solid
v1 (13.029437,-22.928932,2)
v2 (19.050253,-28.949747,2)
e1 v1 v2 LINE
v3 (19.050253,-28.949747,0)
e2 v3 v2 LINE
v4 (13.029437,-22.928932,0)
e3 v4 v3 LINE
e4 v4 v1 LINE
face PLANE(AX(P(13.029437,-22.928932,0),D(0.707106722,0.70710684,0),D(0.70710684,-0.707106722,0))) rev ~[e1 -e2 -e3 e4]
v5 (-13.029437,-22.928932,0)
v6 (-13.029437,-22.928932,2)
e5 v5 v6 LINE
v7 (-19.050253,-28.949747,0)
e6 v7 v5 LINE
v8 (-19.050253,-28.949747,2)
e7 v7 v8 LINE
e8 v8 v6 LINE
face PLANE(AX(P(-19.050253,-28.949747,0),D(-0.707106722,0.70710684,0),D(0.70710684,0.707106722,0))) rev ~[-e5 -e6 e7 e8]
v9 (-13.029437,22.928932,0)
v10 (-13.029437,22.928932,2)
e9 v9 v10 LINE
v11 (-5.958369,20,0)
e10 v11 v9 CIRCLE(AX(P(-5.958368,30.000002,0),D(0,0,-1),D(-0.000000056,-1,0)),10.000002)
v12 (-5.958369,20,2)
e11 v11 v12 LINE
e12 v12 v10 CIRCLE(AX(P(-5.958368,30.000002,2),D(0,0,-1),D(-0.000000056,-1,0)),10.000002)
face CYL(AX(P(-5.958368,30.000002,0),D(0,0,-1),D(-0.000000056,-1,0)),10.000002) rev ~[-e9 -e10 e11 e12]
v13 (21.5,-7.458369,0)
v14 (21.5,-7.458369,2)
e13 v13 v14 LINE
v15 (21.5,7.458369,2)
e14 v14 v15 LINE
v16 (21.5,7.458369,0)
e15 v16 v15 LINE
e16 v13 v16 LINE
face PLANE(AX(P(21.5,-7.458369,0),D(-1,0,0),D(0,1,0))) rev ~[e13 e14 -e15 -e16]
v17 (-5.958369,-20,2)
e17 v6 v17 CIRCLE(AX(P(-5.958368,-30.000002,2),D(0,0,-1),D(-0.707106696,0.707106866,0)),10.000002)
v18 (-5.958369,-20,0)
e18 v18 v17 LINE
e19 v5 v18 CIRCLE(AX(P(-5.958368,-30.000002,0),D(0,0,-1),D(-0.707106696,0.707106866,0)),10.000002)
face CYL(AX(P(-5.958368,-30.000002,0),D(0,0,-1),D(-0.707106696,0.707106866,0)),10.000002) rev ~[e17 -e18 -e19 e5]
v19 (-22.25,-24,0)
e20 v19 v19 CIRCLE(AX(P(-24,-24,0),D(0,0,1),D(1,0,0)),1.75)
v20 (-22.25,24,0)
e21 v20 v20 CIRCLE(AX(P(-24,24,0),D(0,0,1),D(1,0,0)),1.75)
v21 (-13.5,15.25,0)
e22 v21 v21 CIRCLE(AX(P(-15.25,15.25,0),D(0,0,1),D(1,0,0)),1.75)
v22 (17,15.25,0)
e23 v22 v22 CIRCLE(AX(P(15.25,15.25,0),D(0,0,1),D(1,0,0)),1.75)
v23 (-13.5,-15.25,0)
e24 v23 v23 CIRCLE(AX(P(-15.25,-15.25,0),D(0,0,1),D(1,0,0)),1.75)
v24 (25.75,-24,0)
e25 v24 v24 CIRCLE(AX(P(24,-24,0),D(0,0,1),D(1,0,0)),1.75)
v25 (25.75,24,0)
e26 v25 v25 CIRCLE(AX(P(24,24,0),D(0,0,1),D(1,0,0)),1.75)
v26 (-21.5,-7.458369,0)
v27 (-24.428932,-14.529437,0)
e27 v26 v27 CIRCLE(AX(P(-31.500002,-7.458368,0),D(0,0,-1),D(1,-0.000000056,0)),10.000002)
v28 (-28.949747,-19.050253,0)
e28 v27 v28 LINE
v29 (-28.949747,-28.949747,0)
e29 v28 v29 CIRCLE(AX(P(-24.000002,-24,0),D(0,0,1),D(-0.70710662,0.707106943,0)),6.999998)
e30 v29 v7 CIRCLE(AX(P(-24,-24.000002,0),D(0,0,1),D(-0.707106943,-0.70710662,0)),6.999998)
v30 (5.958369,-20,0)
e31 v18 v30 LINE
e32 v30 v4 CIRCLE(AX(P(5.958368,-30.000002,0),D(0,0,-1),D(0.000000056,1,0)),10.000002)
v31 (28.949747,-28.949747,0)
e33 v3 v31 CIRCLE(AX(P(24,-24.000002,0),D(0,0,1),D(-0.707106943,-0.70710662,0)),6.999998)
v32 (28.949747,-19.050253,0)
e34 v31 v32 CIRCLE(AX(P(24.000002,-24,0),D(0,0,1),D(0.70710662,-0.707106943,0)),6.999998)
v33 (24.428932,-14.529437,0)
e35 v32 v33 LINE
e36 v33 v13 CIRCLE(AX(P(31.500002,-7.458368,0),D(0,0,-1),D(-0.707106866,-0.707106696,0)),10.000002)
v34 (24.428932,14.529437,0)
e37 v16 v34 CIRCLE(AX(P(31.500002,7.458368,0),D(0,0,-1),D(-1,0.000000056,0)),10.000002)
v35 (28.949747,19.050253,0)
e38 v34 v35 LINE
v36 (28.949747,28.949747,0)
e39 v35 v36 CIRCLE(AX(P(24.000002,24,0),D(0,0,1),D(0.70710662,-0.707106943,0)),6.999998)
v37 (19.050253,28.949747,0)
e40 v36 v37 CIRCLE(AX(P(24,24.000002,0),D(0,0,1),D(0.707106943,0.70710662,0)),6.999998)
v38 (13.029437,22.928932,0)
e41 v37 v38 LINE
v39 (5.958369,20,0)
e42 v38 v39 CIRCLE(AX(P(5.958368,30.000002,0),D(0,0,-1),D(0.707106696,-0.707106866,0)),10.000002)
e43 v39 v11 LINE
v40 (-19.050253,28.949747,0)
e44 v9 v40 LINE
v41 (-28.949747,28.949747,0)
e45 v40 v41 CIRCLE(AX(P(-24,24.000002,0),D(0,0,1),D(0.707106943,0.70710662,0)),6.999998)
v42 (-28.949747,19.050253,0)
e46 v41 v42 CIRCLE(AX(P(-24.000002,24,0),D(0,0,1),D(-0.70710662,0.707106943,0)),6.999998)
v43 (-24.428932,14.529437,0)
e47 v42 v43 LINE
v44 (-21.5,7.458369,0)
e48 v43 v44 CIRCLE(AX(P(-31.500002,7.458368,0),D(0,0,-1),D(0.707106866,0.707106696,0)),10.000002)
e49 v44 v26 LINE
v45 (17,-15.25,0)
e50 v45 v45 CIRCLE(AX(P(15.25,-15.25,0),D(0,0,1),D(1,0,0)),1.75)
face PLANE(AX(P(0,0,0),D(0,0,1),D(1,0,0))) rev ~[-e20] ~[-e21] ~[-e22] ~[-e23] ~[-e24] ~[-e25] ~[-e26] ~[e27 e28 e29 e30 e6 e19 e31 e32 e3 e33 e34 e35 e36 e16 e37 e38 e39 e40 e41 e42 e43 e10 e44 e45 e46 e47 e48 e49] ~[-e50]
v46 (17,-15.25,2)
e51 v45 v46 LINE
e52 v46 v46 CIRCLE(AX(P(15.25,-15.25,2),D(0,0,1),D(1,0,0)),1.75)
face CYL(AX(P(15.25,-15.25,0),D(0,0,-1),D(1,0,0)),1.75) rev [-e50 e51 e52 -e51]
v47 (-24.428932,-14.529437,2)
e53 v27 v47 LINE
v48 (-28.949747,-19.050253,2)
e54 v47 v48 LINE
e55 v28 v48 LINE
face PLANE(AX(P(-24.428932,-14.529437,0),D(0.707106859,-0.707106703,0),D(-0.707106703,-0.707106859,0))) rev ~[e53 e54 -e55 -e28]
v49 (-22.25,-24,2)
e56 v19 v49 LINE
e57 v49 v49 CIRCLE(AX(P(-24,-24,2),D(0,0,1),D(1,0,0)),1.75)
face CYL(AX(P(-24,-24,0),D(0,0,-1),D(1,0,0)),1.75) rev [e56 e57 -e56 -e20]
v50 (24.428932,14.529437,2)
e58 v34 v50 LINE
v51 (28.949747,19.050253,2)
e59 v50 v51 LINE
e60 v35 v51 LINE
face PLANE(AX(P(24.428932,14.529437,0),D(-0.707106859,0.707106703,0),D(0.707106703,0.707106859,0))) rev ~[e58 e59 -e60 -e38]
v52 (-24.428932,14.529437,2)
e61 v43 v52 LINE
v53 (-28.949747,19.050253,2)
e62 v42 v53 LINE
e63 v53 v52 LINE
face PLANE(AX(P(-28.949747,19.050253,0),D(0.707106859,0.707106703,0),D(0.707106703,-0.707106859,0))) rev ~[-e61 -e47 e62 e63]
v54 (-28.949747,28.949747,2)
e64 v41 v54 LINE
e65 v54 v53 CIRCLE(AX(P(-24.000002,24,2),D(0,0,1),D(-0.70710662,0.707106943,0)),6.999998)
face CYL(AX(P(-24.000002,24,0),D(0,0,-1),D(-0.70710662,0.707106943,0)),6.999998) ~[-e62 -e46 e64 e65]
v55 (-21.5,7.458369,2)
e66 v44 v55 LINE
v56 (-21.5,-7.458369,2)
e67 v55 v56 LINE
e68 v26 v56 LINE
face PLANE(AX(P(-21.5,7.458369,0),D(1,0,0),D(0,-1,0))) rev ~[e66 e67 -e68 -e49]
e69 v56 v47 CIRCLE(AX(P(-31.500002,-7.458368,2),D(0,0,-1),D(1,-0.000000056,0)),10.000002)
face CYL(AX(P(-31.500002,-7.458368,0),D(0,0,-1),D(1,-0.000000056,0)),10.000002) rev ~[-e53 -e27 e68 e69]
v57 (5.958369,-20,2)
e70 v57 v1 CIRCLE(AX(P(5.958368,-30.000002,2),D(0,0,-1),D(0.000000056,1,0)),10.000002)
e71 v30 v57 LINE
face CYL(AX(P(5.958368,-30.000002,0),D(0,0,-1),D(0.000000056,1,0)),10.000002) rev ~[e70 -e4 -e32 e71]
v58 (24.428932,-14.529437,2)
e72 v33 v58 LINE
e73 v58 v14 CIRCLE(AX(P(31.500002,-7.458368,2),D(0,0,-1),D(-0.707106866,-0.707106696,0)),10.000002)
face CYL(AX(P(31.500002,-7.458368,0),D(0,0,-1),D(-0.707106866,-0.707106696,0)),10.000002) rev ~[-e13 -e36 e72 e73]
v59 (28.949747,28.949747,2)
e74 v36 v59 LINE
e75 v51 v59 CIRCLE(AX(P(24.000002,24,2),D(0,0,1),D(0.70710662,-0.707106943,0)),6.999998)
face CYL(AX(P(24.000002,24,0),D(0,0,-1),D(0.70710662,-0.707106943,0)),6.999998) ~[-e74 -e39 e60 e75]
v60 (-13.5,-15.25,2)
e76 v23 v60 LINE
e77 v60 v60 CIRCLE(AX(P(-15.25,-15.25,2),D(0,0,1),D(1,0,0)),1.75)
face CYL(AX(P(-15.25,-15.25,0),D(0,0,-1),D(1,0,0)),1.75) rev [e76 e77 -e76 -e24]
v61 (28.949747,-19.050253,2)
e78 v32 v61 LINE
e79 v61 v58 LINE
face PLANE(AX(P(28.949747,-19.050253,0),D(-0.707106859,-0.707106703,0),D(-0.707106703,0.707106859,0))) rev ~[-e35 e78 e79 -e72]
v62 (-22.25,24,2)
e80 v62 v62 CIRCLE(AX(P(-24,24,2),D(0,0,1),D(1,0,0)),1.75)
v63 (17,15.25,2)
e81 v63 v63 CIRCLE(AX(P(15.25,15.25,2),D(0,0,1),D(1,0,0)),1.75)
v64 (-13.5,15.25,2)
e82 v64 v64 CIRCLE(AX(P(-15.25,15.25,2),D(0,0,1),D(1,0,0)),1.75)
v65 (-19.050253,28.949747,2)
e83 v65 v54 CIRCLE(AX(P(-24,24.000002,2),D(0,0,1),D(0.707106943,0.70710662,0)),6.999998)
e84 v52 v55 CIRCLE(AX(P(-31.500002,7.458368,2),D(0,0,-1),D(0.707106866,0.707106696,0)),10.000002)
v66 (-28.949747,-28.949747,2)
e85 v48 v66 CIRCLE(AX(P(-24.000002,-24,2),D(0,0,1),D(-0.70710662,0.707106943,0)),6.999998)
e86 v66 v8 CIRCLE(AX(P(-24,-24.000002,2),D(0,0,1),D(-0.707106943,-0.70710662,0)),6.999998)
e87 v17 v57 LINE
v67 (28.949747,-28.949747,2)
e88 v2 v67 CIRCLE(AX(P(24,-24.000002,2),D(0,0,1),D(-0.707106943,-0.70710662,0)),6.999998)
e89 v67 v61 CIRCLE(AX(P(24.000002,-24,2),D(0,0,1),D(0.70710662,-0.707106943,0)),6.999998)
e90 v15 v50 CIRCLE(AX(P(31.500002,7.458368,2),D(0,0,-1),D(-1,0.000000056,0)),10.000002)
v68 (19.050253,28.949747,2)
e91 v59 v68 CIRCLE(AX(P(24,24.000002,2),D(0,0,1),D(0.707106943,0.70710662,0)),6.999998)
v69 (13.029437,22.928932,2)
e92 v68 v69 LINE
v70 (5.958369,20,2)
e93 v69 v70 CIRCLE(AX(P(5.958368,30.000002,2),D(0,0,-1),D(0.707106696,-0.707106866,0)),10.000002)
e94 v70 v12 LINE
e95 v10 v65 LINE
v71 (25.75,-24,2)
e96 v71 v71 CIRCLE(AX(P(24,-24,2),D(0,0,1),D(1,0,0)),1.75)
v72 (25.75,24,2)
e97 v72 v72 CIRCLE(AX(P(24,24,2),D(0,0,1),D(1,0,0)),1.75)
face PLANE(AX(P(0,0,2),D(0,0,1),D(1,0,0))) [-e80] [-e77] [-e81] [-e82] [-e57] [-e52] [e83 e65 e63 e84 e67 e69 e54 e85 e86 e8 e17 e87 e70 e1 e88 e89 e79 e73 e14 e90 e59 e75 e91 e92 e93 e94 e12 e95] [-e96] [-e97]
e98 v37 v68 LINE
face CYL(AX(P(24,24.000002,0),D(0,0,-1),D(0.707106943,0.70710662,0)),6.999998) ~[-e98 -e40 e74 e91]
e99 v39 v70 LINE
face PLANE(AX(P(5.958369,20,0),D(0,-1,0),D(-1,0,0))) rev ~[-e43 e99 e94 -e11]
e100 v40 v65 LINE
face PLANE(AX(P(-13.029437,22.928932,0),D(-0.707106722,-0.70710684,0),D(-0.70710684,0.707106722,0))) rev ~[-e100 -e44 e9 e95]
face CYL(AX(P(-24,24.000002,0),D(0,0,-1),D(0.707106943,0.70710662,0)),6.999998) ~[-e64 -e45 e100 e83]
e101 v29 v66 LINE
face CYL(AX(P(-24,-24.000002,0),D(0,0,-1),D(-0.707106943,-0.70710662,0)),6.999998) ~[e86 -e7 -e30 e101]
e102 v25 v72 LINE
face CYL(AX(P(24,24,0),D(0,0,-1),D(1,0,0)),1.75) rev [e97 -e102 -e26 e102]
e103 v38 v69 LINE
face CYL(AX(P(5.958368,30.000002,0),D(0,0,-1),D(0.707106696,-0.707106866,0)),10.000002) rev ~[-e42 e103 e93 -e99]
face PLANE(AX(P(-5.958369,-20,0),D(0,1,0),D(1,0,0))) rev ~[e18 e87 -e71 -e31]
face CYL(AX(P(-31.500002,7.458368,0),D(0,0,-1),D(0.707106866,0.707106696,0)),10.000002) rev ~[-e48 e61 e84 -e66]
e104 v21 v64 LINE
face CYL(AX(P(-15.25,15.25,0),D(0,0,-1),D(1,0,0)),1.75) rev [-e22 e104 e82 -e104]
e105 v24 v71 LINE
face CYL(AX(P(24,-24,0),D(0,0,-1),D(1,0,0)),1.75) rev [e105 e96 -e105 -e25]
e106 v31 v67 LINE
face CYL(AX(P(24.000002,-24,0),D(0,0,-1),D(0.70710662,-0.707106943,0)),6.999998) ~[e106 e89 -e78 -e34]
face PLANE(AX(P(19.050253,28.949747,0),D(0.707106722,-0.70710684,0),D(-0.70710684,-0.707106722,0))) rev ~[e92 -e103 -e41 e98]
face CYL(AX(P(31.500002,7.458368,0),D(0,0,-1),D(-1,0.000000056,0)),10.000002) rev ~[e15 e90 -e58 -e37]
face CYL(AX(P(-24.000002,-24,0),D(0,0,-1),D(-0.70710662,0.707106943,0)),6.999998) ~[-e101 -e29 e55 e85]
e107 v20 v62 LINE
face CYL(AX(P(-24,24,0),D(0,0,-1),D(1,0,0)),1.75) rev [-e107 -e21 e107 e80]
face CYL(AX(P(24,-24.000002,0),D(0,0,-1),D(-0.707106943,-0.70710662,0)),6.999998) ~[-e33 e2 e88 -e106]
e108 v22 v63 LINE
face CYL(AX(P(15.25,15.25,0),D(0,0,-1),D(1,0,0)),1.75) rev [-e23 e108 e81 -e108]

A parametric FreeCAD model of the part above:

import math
import FreeCAD as App
import Part
import Sketcher
Q = App.Units.Quantity

doc = App.newDocument("Part")
params = doc.addObject("Spreadsheet::Sheet", "Params")
for row, (alias, value) in enumerate([
    ("sketch1_diameter", "3.5 mm"),
    ("pad1_length", "2 mm"),
], start=1):
    params.set(f"A{row}", alias)
    params.set(f"B{row}", "=" + value)
    params.setAlias(f"B{row}", alias)

body = doc.addObject("PartDesign::Body", "Body")

# Sketch on XY plane
sketch1 = doc.addObject("Sketcher::SketchObject", "Sketch")
body.addObject(sketch1)
sketch1.AttachmentSupport = (doc.XY_Plane, [""])
sketch1.MapMode = "FlatFace"
sketch1.addGeometry([
    Part.ArcOfCircle(Part.Circle(App.Vector(-24, 24, 0), App.Vector(0, 0, 1), 7), math.radians(135), math.radians(225)),  # 0
    Part.LineSegment(App.Vector(-28.9, 19.1, 0), App.Vector(-24.4, 14.5, 0)),  # 1
    Part.ArcOfCircle(Part.Circle(App.Vector(-31.5, 7.5, 0), App.Vector(0, 0, 1), 10), math.radians(0), math.radians(45)),  # 2
    Part.LineSegment(App.Vector(-21.5, 7.5, 0), App.Vector(-21.5, -7.5, 0)),  # 3
    Part.ArcOfCircle(Part.Circle(App.Vector(-31.5, -7.5, 0), App.Vector(0, 0, 1), 10), math.radians(-45), math.radians(0)),  # 4
    Part.LineSegment(App.Vector(-24.4, -14.5, 0), App.Vector(-28.9, -19.1, 0)),  # 5
    Part.ArcOfCircle(Part.Circle(App.Vector(-24, -24, 0), App.Vector(0, 0, 1), 7), math.radians(135), math.radians(225)),  # 6
    Part.ArcOfCircle(Part.Circle(App.Vector(-24, -24, 0), App.Vector(0, 0, 1), 7), math.radians(-135), math.radians(-45)),  # 7
    Part.LineSegment(App.Vector(-19.1, -28.9, 0), App.Vector(-13, -22.9, 0)),  # 8
    Part.ArcOfCircle(Part.Circle(App.Vector(-6, -30, 0), App.Vector(0, 0, 1), 10), math.radians(90), math.radians(135)),  # 9
    Part.LineSegment(App.Vector(-6, -20, 0), App.Vector(6, -20, 0)),  # 10
    Part.ArcOfCircle(Part.Circle(App.Vector(6, -30, 0), App.Vector(0, 0, 1), 10), math.radians(45), math.radians(90)),  # 11
    Part.LineSegment(App.Vector(13, -22.9, 0), App.Vector(19.1, -28.9, 0)),  # 12
    Part.ArcOfCircle(Part.Circle(App.Vector(24, -24, 0), App.Vector(0, 0, 1), 7), math.radians(-135), math.radians(-45)),  # 13
    Part.ArcOfCircle(Part.Circle(App.Vector(24, -24, 0), App.Vector(0, 0, 1), 7), math.radians(-45), math.radians(45)),  # 14
    Part.LineSegment(App.Vector(28.9, -19.1, 0), App.Vector(24.4, -14.5, 0)),  # 15
    Part.ArcOfCircle(Part.Circle(App.Vector(31.5, -7.5, 0), App.Vector(0, 0, 1), 10), math.radians(-180), math.radians(-135)),  # 16
    Part.LineSegment(App.Vector(21.5, -7.5, 0), App.Vector(21.5, 7.5, 0)),  # 17
    Part.ArcOfCircle(Part.Circle(App.Vector(31.5, 7.5, 0), App.Vector(0, 0, 1), 10), math.radians(135), math.radians(180)),  # 18
    Part.LineSegment(App.Vector(24.4, 14.5, 0), App.Vector(28.9, 19.1, 0)),  # 19
    Part.ArcOfCircle(Part.Circle(App.Vector(24, 24, 0), App.Vector(0, 0, 1), 7), math.radians(-45), math.radians(45)),  # 20
    Part.ArcOfCircle(Part.Circle(App.Vector(24, 24, 0), App.Vector(0, 0, 1), 7), math.radians(45), math.radians(135)),  # 21
    Part.LineSegment(App.Vector(19.1, 28.9, 0), App.Vector(13, 22.9, 0)),  # 22
    Part.ArcOfCircle(Part.Circle(App.Vector(6, 30, 0), App.Vector(0, 0, 1), 10), math.radians(-90), math.radians(-45)),  # 23
    Part.LineSegment(App.Vector(6, 20, 0), App.Vector(-6, 20, 0)),  # 24
    Part.ArcOfCircle(Part.Circle(App.Vector(-6, 30, 0), App.Vector(0, 0, 1), 10), math.radians(-135), math.radians(-90)),  # 25
    Part.LineSegment(App.Vector(-13, 22.9, 0), App.Vector(-19.1, 28.9, 0)),  # 26
    Part.ArcOfCircle(Part.Circle(App.Vector(-24, 24, 0), App.Vector(0, 0, 1), 7), math.radians(45), math.radians(135)),  # 27
    Part.Circle(App.Vector(-24, -24, 0), App.Vector(0, 0, 1), 1.8),  # 28
    Part.Circle(App.Vector(-15.2, -15.2, 0), App.Vector(0, 0, 1), 1.8),  # 29
    Part.Circle(App.Vector(24, -24, 0), App.Vector(0, 0, 1), 1.8),  # 30
    Part.Circle(App.Vector(15.2, -15.2, 0), App.Vector(0, 0, 1), 1.8),  # 31
    Part.Circle(App.Vector(-15.2, 15.2, 0), App.Vector(0, 0, 1), 1.8),  # 32
    Part.Circle(App.Vector(-24, 24, 0), App.Vector(0, 0, 1), 1.8),  # 33
    Part.Circle(App.Vector(15.2, 15.2, 0), App.Vector(0, 0, 1), 1.8),  # 34
    Part.Circle(App.Vector(24, 24, 0), App.Vector(0, 0, 1), 1.8),  # 35
], False)
sketch1.addConstraint([
    Sketcher.Constraint("Tangent", 0, 2, 1, 1),
    Sketcher.Constraint("Tangent", 1, 2, 2, 2),
    Sketcher.Constraint("Tangent", 2, 1, 3, 1),
    Sketcher.Constraint("Tangent", 3, 2, 4, 2),
    Sketcher.Constraint("Tangent", 4, 1, 5, 1),
    Sketcher.Constraint("Tangent", 5, 2, 6, 1),
    Sketcher.Constraint("Tangent", 6, 2, 7, 1),
    Sketcher.Constraint("Tangent", 7, 2, 8, 1),
    Sketcher.Constraint("Tangent", 8, 2, 9, 2),
    Sketcher.Constraint("Tangent", 9, 1, 10, 1),
    Sketcher.Constraint("Tangent", 10, 2, 11, 2),
    Sketcher.Constraint("Tangent", 11, 1, 12, 1),
    Sketcher.Constraint("Tangent", 12, 2, 13, 1),
    Sketcher.Constraint("Tangent", 13, 2, 14, 1),
    Sketcher.Constraint("Tangent", 14, 2, 15, 1),
    Sketcher.Constraint("Tangent", 15, 2, 16, 2),
    Sketcher.Constraint("Tangent", 16, 1, 17, 1),
    Sketcher.Constraint("Tangent", 17, 2, 18, 2),
    Sketcher.Constraint("Tangent", 18, 1, 19, 1),
    Sketcher.Constraint("Tangent", 19, 2, 20, 1),
    Sketcher.Constraint("Tangent", 20, 2, 21, 1),
    Sketcher.Constraint("Tangent", 21, 2, 22, 1),
    Sketcher.Constraint("Tangent", 22, 2, 23, 2),
    Sketcher.Constraint("Tangent", 23, 1, 24, 1),
    Sketcher.Constraint("Tangent", 24, 2, 25, 2),
    Sketcher.Constraint("Tangent", 25, 1, 26, 1),
    Sketcher.Constraint("Tangent", 26, 2, 27, 1),
    Sketcher.Constraint("Tangent", 27, 2, 0, 1),
    Sketcher.Constraint("Vertical", 3),
    Sketcher.Constraint("Horizontal", 10),
    Sketcher.Constraint("Vertical", 17),
    Sketcher.Constraint("Horizontal", 24),
    Sketcher.Constraint("Coincident", 28, 3, 6, 3),
    Sketcher.Constraint("Coincident", 30, 3, 13, 3),
    Sketcher.Constraint("Coincident", 33, 3, 0, 3),
    Sketcher.Constraint("Coincident", 35, 3, 20, 3),
    Sketcher.Constraint("Equal", 2, 4),
    Sketcher.Constraint("Equal", 0, 6),
    Sketcher.Constraint("Equal", 6, 7),
    Sketcher.Constraint("Equal", 4, 9),
    Sketcher.Constraint("Equal", 9, 11),
    Sketcher.Constraint("Equal", 7, 13),
    Sketcher.Constraint("Equal", 13, 14),
    Sketcher.Constraint("Equal", 11, 16),
    Sketcher.Constraint("Equal", 16, 18),
    Sketcher.Constraint("Equal", 14, 20),
    Sketcher.Constraint("Equal", 20, 21),
    Sketcher.Constraint("Equal", 18, 23),
    Sketcher.Constraint("Equal", 23, 25),
    Sketcher.Constraint("Equal", 21, 27),
    Sketcher.Constraint("Equal", 28, 29),
    Sketcher.Constraint("Equal", 29, 30),
    Sketcher.Constraint("Equal", 30, 31),
    Sketcher.Constraint("Equal", 31, 32),
    Sketcher.Constraint("Equal", 32, 33),
    Sketcher.Constraint("Equal", 33, 34),
    Sketcher.Constraint("Equal", 34, 35),
    Sketcher.Constraint("Symmetric", 0, 3, 13, 3, -1, 1),
    Sketcher.Constraint("Symmetric", 2, 3, 16, 3, -1, 1),
    Sketcher.Constraint("Symmetric", 6, 3, 20, 3, -1, 1),
    Sketcher.Constraint("Symmetric", 9, 3, 23, 3, -1, 1),
    Sketcher.Constraint("Symmetric", 31, 3, 32, 3, -1, 1),
    Sketcher.Constraint("Symmetric", 29, 3, 34, 3, -1, 1),
    Sketcher.Constraint("Symmetric", 6, 3, 13, 3, -2),
    Sketcher.Constraint("Symmetric", 29, 3, 31, 3, -2),
    Sketcher.Constraint("Perpendicular", 1, 5),
    Sketcher.Constraint("Parallel", 5, 8),
    Sketcher.Constraint("Perpendicular", 8, 12),
    Sketcher.Constraint("Perpendicular", 15, 19),
    Sketcher.Constraint("Perpendicular", 22, 26),
    Sketcher.Constraint("Horizontal", 4, 3, 16, 3),
    Sketcher.Constraint("Horizontal", 6, 2, 7, 2),
    Sketcher.Constraint("Horizontal", 12, 2, 13, 2),
    Sketcher.Constraint("Horizontal", 20, 2, 21, 2),
    Sketcher.Constraint("Horizontal", 26, 2, 27, 2),
    Sketcher.Constraint("Diameter", 28, Q("3.5 mm")),
    Sketcher.Constraint("DistanceY", -1, 1, 0, 3, Q("24 mm")),
    Sketcher.Constraint("DistanceX", 7, 3, -1, 1, Q("24 mm")),
    Sketcher.Constraint("DistanceY", 9, 1, -1, 1, Q("20 mm")),
    Sketcher.Constraint("DistanceY", 9, 3, 7, 3, Q("6 mm")),
    Sketcher.Constraint("DistanceX", 2, 1, -1, 1, Q("21.5 mm")),
    Sketcher.Constraint("DistanceX", 29, 3, -1, 1, Q("15.25 mm")),
    Sketcher.Constraint("DistanceY", 29, 3, -1, 1, Q("15.25 mm")),
    Sketcher.Constraint("Radius", 0, Q("6.999998 mm")),
])
sketch1.setExpression("Constraints[75]", "Params.sketch1_diameter")
pad1 = doc.addObject("PartDesign::Pad", "Pad")
body.addObject(pad1)
pad1.Profile = sketch1
pad1.setExpression("Length", "Params.pad1_length")

doc.recompute()
